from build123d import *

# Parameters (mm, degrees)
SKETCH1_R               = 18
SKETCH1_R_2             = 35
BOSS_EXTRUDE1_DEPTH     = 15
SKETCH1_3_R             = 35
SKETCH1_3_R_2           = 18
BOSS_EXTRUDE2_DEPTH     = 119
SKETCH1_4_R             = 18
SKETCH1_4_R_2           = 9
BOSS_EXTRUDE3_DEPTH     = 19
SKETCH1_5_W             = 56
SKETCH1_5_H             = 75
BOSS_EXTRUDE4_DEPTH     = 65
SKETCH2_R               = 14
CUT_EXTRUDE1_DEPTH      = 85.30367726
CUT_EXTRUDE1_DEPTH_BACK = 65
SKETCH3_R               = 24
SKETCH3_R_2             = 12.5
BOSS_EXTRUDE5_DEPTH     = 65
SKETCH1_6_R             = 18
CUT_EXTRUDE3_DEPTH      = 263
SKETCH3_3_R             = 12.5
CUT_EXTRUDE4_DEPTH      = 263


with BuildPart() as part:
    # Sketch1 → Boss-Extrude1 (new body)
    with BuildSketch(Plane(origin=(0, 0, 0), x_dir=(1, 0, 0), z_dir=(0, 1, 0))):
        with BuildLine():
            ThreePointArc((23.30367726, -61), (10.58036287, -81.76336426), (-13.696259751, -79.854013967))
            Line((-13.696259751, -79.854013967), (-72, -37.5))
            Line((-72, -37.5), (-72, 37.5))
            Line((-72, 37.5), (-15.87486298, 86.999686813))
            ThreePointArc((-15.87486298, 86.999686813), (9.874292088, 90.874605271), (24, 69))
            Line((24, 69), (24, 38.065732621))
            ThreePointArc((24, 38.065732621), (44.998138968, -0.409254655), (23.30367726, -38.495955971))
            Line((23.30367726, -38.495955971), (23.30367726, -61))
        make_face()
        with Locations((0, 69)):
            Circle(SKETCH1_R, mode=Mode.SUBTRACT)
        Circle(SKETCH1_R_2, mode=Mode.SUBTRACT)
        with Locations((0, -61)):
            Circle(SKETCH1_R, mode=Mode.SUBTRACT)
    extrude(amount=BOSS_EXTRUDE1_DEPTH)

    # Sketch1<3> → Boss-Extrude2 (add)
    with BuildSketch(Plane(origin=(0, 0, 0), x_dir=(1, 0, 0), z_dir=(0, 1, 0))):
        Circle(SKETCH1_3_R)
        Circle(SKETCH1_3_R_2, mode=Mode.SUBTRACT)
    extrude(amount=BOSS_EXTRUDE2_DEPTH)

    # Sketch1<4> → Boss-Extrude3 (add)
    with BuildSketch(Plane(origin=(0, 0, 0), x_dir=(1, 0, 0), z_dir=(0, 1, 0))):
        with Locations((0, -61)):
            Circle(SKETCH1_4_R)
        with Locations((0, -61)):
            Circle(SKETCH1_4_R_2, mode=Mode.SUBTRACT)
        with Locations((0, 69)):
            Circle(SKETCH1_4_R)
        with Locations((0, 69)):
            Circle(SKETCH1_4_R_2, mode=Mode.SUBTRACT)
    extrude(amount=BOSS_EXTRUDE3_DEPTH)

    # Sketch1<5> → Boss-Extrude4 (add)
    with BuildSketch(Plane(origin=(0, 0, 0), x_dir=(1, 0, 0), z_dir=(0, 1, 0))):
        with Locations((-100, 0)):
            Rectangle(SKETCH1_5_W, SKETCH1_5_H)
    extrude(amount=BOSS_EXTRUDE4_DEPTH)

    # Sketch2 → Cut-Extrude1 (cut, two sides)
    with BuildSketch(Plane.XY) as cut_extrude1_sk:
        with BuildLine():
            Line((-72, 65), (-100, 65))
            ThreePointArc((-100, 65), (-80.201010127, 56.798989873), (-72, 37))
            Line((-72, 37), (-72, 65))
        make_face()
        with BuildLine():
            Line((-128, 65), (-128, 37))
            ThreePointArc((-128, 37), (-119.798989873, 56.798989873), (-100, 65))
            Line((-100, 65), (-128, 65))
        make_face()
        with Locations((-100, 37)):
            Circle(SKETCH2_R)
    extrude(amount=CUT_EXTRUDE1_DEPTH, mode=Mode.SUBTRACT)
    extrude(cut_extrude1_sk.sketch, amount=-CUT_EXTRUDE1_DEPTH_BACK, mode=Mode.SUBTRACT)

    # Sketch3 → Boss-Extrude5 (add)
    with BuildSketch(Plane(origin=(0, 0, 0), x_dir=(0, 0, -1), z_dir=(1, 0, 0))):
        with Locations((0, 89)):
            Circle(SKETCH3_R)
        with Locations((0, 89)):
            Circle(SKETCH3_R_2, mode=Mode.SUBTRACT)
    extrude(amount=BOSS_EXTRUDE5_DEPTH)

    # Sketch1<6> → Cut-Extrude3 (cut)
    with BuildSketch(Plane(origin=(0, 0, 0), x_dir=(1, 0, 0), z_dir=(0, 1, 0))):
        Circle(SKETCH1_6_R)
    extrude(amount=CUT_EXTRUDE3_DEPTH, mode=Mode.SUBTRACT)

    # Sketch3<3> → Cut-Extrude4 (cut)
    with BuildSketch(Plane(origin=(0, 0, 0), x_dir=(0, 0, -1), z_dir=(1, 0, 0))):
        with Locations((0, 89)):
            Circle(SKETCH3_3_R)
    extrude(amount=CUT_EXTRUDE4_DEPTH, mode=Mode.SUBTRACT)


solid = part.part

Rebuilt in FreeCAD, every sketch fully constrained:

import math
import FreeCAD as App
import Part
import Sketcher
Q = App.Units.Quantity


def add_polygon(sketch, points):
    """Adds a closed chain of lines whose ends are joined by coincident constraints."""
    first, n = sketch.GeometryCount, len(points)
    for a, b in zip(points, points[1:] + points[:1]):
        sketch.addGeometry(Part.LineSegment(App.Vector(*a, 0), App.Vector(*b, 0)), False)
    for i in range(n):
        sketch.addConstraint(Sketcher.Constraint("Coincident", first + i, 2, first + (i + 1) % n, 1))

doc = App.newDocument("Part")
body = doc.addObject("PartDesign::Body", "Body")

sketch1 = body.newObject("Sketcher::SketchObject", "Sketch")
sketch1.AttachmentSupport = (doc.getObject("XZ_Plane"), [""])
sketch1.MapMode = "FlatFace"
sketch1.addGeometry(Part.ArcOfCircle(Part.Circle(App.Vector(0, 61, 0), App.Vector(0, 0, 1), 23), math.radians(0), math.radians(126)), False)
sketch1.addGeometry(Part.LineSegment(App.Vector(23, 61, 0), App.Vector(23, 38, 0)), False)
sketch1.addGeometry(Part.ArcOfCircle(Part.Circle(App.Vector(0, 0, 0), App.Vector(0, 0, 1), 45), math.radians(-58), math.radians(59)), False)
sketch1.addGeometry(Part.LineSegment(App.Vector(24, -38, 0), App.Vector(24, -69, 0)), False)
sketch1.addGeometry(Part.ArcOfCircle(Part.Circle(App.Vector(0, -69, 0), App.Vector(0, 0, 1), 24), math.radians(-131), math.radians(0)), False)
sketch1.addGeometry(Part.LineSegment(App.Vector(-16, -87, 0), App.Vector(-72, -38, 0)), False)
sketch1.addGeometry(Part.LineSegment(App.Vector(-72, -38, 0), App.Vector(-72, 38, 0)), False)
sketch1.addGeometry(Part.LineSegment(App.Vector(-72, 38, 0), App.Vector(-14, 80, 0)), False)
sketch1.addGeometry(Part.Circle(App.Vector(0, 61, 0), App.Vector(0, 0, 1), 18), False)
sketch1.addGeometry(Part.Circle(App.Vector(0, 0, 0), App.Vector(0, 0, 1), 35), False)
sketch1.addGeometry(Part.Circle(App.Vector(0, -69, 0), App.Vector(0, 0, 1), 18), False)
sketch1.addConstraint(Sketcher.Constraint("Tangent", 0, 1, 1, 1))
sketch1.addConstraint(Sketcher.Constraint("Coincident", 1, 2, 2, 2))
sketch1.addConstraint(Sketcher.Constraint("Coincident", 2, 1, 3, 1))
sketch1.addConstraint(Sketcher.Constraint("Tangent", 3, 2, 4, 2))
sketch1.addConstraint(Sketcher.Constraint("Tangent", 4, 1, 5, 1))
sketch1.addConstraint(Sketcher.Constraint("Coincident", 5, 2, 6, 1))
sketch1.addConstraint(Sketcher.Constraint("Coincident", 6, 2, 7, 1))
sketch1.addConstraint(Sketcher.Constraint("Tangent", 7, 2, 0, 2))
sketch1.addConstraint(Sketcher.Constraint("Vertical", 1))
sketch1.addConstraint(Sketcher.Constraint("Vertical", 3))
sketch1.addConstraint(Sketcher.Constraint("Vertical", 6))
sketch1.addConstraint(Sketcher.Constraint("Coincident", 2, 3, -1, 1))
sketch1.addConstraint(Sketcher.Constraint("Coincident", 9, 3, -1, 1))
sketch1.addConstraint(Sketcher.Constraint("Coincident", 8, 3, 0, 3))
sketch1.addConstraint(Sketcher.Constraint("Coincident", 10, 3, 4, 3))
sketch1.addConstraint(Sketcher.Constraint("Equal", 8, 10))
sketch1.addConstraint(Sketcher.Constraint("PointOnObject", 0, 3, -2))
sketch1.addConstraint(Sketcher.Constraint("PointOnObject", 4, 3, -2))
sketch1.addConstraint(Sketcher.Constraint("Diameter", 8, Q("36 mm")))
sketch1.addConstraint(Sketcher.Constraint("Diameter", 9, Q("70 mm")))
sketch1.addConstraint(Sketcher.Constraint("Radius", 2, Q("45 mm")))
sketch1.addConstraint(Sketcher.Constraint("Radius", 4, Q("24 mm")))
sketch1.addConstraint(Sketcher.Constraint("DistanceY", 6, 1, 6, 2, Q("75 mm")))
sketch1.addConstraint(Sketcher.Constraint("DistanceY", -1, 1, 0, 3, Q("61 mm")))
sketch1.addConstraint(Sketcher.Constraint("DistanceY", 4, 3, -1, 1, Q("69 mm")))
sketch1.addConstraint(Sketcher.Constraint("DistanceX", 5, 2, -1, 1, Q("72 mm")))
sketch1.addConstraint(Sketcher.Constraint("DistanceY", 5, 2, -1, 1, Q("37.5 mm")))
sketch1.addConstraint(Sketcher.Constraint("Radius", 0, Q("23.303677 mm")))
pad1 = body.newObject("PartDesign::Pad", "Pad")
pad1.Profile = sketch1
pad1.Length = 15
pad1.Reversed = True

sketch2 = body.newObject("Sketcher::SketchObject", "Sketch001")
sketch2.AttachmentSupport = (doc.getObject("XZ_Plane"), [""])
sketch2.MapMode = "FlatFace"
sketch2.addGeometry(Part.Circle(App.Vector(0, 0, 0), App.Vector(0, 0, 1), 35), False)
sketch2.addGeometry(Part.Circle(App.Vector(0, 0, 0), App.Vector(0, 0, 1), 18), False)
sketch2.addConstraint(Sketcher.Constraint("Coincident", 0, 3, -1, 1))
sketch2.addConstraint(Sketcher.Constraint("Coincident", 1, 3, -1, 1))
sketch2.addConstraint(Sketcher.Constraint("Diameter", 0, Q("70 mm")))
sketch2.addConstraint(Sketcher.Constraint("Diameter", 1, Q("36 mm")))
pad2 = body.newObject("PartDesign::Pad", "Pad001")
pad2.Profile = sketch2
pad2.Length = 119
pad2.Reversed = True

sketch3 = body.newObject("Sketcher::SketchObject", "Sketch002")
sketch3.AttachmentSupport = (doc.getObject("XZ_Plane"), [""])
sketch3.MapMode = "FlatFace"
sketch3.addGeometry(Part.Circle(App.Vector(0, 61, 0), App.Vector(0, 0, 1), 18), False)
sketch3.addGeometry(Part.Circle(App.Vector(0, 61, 0), App.Vector(0, 0, 1), 9), False)
sketch3.addGeometry(Part.Circle(App.Vector(0, -69, 0), App.Vector(0, 0, 1), 18), False)
sketch3.addGeometry(Part.Circle(App.Vector(0, -69, 0), App.Vector(0, 0, 1), 9), False)
sketch3.addConstraint(Sketcher.Constraint("Coincident", 1, 3, 0, 3))
sketch3.addConstraint(Sketcher.Constraint("Coincident", 3, 3, 2, 3))
sketch3.addConstraint(Sketcher.Constraint("Equal", 0, 2))
sketch3.addConstraint(Sketcher.Constraint("Equal", 1, 3))
sketch3.addConstraint(Sketcher.Constraint("PointOnObject", 0, 3, -2))
sketch3.addConstraint(Sketcher.Constraint("PointOnObject", 2, 3, -2))
sketch3.addConstraint(Sketcher.Constraint("Diameter", 0, Q("36 mm")))
sketch3.addConstraint(Sketcher.Constraint("Diameter", 1, Q("18 mm")))
sketch3.addConstraint(Sketcher.Constraint("DistanceY", -1, 1, 0, 3, Q("61 mm")))
sketch3.addConstraint(Sketcher.Constraint("DistanceY", 2, 3, -1, 1, Q("69 mm")))
pad3 = body.newObject("PartDesign::Pad", "Pad002")
pad3.Profile = sketch3
pad3.Length = 19
pad3.Reversed = True

sketch4 = body.newObject("Sketcher::SketchObject", "Sketch003")
sketch4.AttachmentSupport = (doc.getObject("XZ_Plane"), [""])
sketch4.MapMode = "FlatFace"
add_polygon(sketch4, [(-128, -38), (-128, 38), (-72, 38), (-72, -38)])
sketch4.addConstraint(Sketcher.Constraint("Vertical", 0))
sketch4.addConstraint(Sketcher.Constraint("Horizontal", 1))
sketch4.addConstraint(Sketcher.Constraint("Vertical", 2))
sketch4.addConstraint(Sketcher.Constraint("Horizontal", 3))
sketch4.addConstraint(Sketcher.Constraint("DistanceX", 1, 1, 1, 2, Q("56 mm")))
sketch4.addConstraint(Sketcher.Constraint("DistanceY", 0, 1, 0, 2, Q("75 mm")))
sketch4.addConstraint(Sketcher.Constraint("DistanceX", 0, 2, -1, 1, Q("128 mm")))
sketch4.addConstraint(Sketcher.Constraint("DistanceY", -1, 1, 0, 2, Q("37.5 mm")))
pad4 = body.newObject("PartDesign::Pad", "Pad003")
pad4.Profile = sketch4
pad4.Length = 65
pad4.Reversed = True

sketch5 = body.newObject("Sketcher::SketchObject", "Sketch004")
sketch5.AttachmentSupport = (doc.getObject("XY_Plane"), [""])
sketch5.MapMode = "FlatFace"
sketch5.addGeometry(Part.LineSegment(App.Vector(-72, 65, 0), App.Vector(-100, 65, 0)), False)
sketch5.addGeometry(Part.ArcOfCircle(Part.Circle(App.Vector(-100, 37, 0), App.Vector(0, 0, 1), 28), math.radians(0), math.radians(90)), False)
sketch5.addGeometry(Part.LineSegment(App.Vector(-72, 37, 0), App.Vector(-72, 65, 0)), False)
sketch5.addGeometry(Part.LineSegment(App.Vector(-128, 65, 0), App.Vector(-128, 37, 0)), False)
sketch5.addGeometry(Part.ArcOfCircle(Part.Circle(App.Vector(-100, 37, 0), App.Vector(0, 0, 1), 28), math.radians(90), math.radians(180)), False)
sketch5.addGeometry(Part.LineSegment(App.Vector(-100, 65, 0), App.Vector(-128, 65, 0)), False)
sketch5.addGeometry(Part.Circle(App.Vector(-100, 37, 0), App.Vector(0, 0, 1), 14), False)
sketch5.addConstraint(Sketcher.Constraint("Tangent", 0, 2, 1, 2))
sketch5.addConstraint(Sketcher.Constraint("Tangent", 1, 1, 2, 1))
sketch5.addConstraint(Sketcher.Constraint("Coincident", 2, 2, 0, 1))
sketch5.addConstraint(Sketcher.Constraint("Tangent", 3, 2, 4, 2))
sketch5.addConstraint(Sketcher.Constraint("Tangent", 4, 1, 5, 1))
sketch5.addConstraint(Sketcher.Constraint("Coincident", 5, 2, 3, 1))
sketch5.addConstraint(Sketcher.Constraint("Horizontal", 0))
sketch5.addConstraint(Sketcher.Constraint("Vertical", 2))
sketch5.addConstraint(Sketcher.Constraint("Vertical", 3))
sketch5.addConstraint(Sketcher.Constraint("Horizontal", 5))
sketch5.addConstraint(Sketcher.Constraint("Coincident", 4, 3, 1, 3))
sketch5.addConstraint(Sketcher.Constraint("Coincident", 6, 3, 1, 3))
sketch5.addConstraint(Sketcher.Constraint("Equal", 1, 4))
sketch5.addConstraint(Sketcher.Constraint("Diameter", 6, Q("28 mm")))
sketch5.addConstraint(Sketcher.Constraint("Radius", 1, Q("28 mm")))
sketch5.addConstraint(Sketcher.Constraint("DistanceX", 1, 3, -1, 1, Q("100 mm")))
sketch5.addConstraint(Sketcher.Constraint("DistanceY", -1, 1, 1, 3, Q("37 mm")))
pocket1 = body.newObject("PartDesign::Pocket", "Pocket")
pocket1.Profile = sketch5
pocket1.Type = "ThroughAll"
pocket1.Midplane = True

sketch6 = body.newObject("Sketcher::SketchObject", "Sketch005")
sketch6.AttachmentSupport = (doc.getObject("YZ_Plane"), [""])
sketch6.MapMode = "FlatFace"
sketch6.addGeometry(Part.Circle(App.Vector(89, 0, 0), App.Vector(0, 0, 1), 24), False)
sketch6.addGeometry(Part.Circle(App.Vector(89, 0, 0), App.Vector(0, 0, 1), 12), False)
sketch6.addConstraint(Sketcher.Constraint("Coincident", 1, 3, 0, 3))
sketch6.addConstraint(Sketcher.Constraint("PointOnObject", 0, 3, -1))
sketch6.addConstraint(Sketcher.Constraint("Diameter", 0, Q("48 mm")))
sketch6.addConstraint(Sketcher.Constraint("Diameter", 1, Q("25 mm")))
sketch6.addConstraint(Sketcher.Constraint("DistanceX", -1, 1, 0, 3, Q("89 mm")))
pad5 = body.newObject("PartDesign::Pad", "Pad004")
pad5.Profile = sketch6
pad5.Length = 65

sketch7 = body.newObject("Sketcher::SketchObject", "Sketch006")
sketch7.AttachmentSupport = (doc.getObject("XZ_Plane"), [""])
sketch7.MapMode = "FlatFace"
sketch7.addGeometry(Part.Circle(App.Vector(0, 0, 0), App.Vector(0, 0, 1), 18), False)
sketch7.addConstraint(Sketcher.Constraint("Coincident", 0, 3, -1, 1))
sketch7.addConstraint(Sketcher.Constraint("Diameter", 0, Q("36 mm")))
pocket2 = body.newObject("PartDesign::Pocket", "Pocket001")
pocket2.Profile = sketch7
pocket2.Length = 263

sketch8 = body.newObject("Sketcher::SketchObject", "Sketch007")
sketch8.AttachmentSupport = (doc.getObject("YZ_Plane"), [""])
sketch8.MapMode = "FlatFace"
sketch8.addGeometry(Part.Circle(App.Vector(89, 0, 0), App.Vector(0, 0, 1), 12), False)
sketch8.addConstraint(Sketcher.Constraint("PointOnObject", 0, 3, -1))
sketch8.addConstraint(Sketcher.Constraint("Diameter", 0, Q("25 mm")))
sketch8.addConstraint(Sketcher.Constraint("DistanceX", -1, 1, 0, 3, Q("89 mm")))
pocket3 = body.newObject("PartDesign::Pocket", "Pocket002")
pocket3.Profile = sketch8
pocket3.Length = 263
pocket3.Reversed = True

doc.recompute()
